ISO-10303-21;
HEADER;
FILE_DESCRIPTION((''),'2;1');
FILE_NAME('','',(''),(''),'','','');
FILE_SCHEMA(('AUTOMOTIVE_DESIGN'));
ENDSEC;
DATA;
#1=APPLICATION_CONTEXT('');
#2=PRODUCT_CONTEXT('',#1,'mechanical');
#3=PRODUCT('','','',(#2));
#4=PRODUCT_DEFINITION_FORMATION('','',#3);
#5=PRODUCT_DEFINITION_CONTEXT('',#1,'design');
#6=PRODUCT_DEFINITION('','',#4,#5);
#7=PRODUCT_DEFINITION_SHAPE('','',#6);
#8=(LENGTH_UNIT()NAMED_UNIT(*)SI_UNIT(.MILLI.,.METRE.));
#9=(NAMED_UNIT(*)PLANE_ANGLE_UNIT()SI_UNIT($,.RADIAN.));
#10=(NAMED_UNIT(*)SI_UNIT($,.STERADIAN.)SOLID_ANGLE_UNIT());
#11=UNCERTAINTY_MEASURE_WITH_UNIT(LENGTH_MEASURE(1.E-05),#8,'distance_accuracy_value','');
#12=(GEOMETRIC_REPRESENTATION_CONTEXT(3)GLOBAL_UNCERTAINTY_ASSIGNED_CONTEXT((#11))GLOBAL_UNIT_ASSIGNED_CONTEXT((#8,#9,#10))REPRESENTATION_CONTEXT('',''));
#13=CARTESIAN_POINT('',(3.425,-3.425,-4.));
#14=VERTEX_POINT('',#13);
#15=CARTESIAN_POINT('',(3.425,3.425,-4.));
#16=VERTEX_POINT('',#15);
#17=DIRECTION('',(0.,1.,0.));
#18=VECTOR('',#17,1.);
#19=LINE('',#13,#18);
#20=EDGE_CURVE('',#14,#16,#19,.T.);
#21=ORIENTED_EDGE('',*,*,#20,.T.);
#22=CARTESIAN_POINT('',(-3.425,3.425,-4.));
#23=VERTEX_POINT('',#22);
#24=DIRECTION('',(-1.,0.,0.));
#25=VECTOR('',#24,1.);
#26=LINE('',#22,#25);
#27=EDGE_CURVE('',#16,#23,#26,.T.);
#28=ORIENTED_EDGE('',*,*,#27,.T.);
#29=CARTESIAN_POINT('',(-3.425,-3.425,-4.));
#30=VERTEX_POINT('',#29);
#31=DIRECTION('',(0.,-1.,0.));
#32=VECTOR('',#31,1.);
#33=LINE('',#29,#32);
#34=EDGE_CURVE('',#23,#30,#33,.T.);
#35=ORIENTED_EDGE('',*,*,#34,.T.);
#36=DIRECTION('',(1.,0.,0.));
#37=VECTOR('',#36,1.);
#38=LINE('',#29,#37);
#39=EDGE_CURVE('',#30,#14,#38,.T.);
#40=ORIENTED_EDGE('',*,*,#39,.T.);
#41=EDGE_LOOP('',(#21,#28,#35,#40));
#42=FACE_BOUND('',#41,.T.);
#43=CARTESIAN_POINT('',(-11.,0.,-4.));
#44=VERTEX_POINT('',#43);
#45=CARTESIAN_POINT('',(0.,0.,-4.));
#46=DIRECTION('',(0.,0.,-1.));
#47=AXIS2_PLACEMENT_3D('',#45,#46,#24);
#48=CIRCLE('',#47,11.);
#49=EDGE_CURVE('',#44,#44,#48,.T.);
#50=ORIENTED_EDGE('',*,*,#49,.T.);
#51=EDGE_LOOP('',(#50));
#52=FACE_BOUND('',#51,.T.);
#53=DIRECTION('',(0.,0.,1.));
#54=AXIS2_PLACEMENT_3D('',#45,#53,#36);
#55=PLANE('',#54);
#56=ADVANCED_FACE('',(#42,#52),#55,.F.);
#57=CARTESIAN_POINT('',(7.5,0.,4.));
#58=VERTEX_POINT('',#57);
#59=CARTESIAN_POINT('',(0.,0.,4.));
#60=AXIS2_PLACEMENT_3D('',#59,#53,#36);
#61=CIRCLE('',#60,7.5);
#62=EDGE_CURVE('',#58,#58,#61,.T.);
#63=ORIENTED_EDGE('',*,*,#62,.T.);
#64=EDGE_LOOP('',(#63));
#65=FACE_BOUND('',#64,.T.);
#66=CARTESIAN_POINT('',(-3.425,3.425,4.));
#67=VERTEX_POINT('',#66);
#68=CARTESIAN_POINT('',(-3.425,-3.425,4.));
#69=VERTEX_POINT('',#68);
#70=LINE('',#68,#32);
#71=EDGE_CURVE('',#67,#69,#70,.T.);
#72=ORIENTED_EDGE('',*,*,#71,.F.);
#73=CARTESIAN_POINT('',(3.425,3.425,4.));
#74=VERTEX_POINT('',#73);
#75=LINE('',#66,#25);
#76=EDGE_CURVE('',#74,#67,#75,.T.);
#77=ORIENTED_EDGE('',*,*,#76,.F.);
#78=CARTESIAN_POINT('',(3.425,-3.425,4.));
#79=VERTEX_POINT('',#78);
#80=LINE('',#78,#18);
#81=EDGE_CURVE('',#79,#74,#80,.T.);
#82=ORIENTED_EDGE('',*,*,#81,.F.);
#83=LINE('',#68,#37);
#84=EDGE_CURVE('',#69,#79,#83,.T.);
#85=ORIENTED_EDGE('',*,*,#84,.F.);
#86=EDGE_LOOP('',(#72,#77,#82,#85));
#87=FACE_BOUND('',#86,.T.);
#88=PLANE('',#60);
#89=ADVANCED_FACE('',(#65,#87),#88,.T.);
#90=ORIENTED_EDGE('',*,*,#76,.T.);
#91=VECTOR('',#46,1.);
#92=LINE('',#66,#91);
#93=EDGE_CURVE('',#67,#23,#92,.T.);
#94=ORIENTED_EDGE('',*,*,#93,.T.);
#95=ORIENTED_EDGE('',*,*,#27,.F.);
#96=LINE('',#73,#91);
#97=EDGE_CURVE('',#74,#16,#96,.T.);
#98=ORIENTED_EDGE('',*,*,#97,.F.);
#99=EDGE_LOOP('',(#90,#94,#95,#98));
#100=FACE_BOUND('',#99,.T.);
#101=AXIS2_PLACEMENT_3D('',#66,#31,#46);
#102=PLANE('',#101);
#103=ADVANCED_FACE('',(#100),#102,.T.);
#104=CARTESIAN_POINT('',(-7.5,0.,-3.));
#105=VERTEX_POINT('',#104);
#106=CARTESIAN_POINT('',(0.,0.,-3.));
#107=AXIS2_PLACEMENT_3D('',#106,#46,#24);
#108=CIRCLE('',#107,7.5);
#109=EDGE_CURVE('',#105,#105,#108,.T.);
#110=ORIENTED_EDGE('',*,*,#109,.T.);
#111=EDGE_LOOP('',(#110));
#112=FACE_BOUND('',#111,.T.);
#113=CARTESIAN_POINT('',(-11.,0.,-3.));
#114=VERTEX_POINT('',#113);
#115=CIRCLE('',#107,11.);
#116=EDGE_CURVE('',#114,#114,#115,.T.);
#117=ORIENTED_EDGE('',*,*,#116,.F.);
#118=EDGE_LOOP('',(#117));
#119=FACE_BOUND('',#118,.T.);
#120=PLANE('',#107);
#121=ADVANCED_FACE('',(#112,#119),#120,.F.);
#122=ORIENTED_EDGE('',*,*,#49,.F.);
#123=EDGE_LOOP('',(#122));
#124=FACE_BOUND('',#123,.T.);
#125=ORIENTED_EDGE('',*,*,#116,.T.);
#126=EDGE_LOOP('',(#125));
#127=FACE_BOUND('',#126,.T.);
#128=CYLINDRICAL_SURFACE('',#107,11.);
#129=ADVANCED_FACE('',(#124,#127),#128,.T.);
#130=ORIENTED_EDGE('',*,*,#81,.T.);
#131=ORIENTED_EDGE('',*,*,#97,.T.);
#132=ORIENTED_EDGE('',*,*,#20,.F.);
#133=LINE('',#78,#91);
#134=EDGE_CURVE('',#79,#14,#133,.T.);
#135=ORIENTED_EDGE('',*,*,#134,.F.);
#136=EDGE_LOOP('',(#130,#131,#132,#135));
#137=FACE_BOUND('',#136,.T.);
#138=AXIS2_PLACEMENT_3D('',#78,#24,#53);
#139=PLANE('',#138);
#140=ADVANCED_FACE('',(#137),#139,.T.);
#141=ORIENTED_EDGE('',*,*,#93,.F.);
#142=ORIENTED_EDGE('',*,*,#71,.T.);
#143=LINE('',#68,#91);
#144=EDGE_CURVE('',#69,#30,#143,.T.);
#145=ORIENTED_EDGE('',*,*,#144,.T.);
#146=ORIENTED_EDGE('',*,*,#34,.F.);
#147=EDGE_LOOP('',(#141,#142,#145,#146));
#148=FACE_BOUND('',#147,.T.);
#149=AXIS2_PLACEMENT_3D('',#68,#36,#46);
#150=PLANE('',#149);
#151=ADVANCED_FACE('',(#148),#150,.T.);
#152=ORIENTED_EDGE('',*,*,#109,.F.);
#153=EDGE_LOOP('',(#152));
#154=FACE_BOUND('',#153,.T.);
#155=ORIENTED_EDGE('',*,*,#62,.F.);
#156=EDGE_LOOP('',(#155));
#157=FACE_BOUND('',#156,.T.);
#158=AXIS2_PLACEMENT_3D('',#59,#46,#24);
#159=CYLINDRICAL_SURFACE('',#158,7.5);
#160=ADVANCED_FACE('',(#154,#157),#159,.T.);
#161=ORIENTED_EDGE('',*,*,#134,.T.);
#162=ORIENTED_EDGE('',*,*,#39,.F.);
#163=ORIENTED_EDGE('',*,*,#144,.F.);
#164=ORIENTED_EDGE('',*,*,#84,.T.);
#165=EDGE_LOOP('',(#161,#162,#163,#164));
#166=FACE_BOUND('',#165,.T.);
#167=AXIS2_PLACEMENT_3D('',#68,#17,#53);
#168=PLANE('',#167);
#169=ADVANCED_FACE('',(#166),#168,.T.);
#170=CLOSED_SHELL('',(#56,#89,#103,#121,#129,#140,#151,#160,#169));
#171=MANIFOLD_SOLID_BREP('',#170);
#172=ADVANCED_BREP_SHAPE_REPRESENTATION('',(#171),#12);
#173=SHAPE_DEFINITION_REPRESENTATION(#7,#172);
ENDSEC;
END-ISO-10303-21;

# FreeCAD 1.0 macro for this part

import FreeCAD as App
import Part
import Sketcher
from FreeCAD import Vector
Q = App.Units.Quantity

doc = App.newDocument("Part")
body = doc.addObject("PartDesign::Body", "Body")

# Sketch on XY plane
sketch1 = body.newObject("Sketcher::SketchObject", "Sketch")
sketch1.AttachmentSupport = (doc.getObject("XY_Plane"), [""])
sketch1.MapMode = "FlatFace"
sketch1.addGeometry(Part.Circle(Vector(0, 0, 0), Vector(0, 0, 1), 8), False)
sketch1.addGeometry(Part.LineSegment(Vector(3, -3, 0), Vector(-3, -3, 0)), False)
sketch1.addGeometry(Part.LineSegment(Vector(-3, -3, 0), Vector(-3, 3, 0)), False)
sketch1.addGeometry(Part.LineSegment(Vector(-3, 3, 0), Vector(3, 3, 0)), False)
sketch1.addGeometry(Part.LineSegment(Vector(3, 3, 0), Vector(3, -3, 0)), False)
sketch1.addConstraint(Sketcher.Constraint("Coincident", 1, 2, 2, 1))
sketch1.addConstraint(Sketcher.Constraint("Coincident", 2, 2, 3, 1))
sketch1.addConstraint(Sketcher.Constraint("Coincident", 3, 2, 4, 1))
sketch1.addConstraint(Sketcher.Constraint("Coincident", 4, 2, 1, 1))
sketch1.addConstraint(Sketcher.Constraint("Horizontal", 1))
sketch1.addConstraint(Sketcher.Constraint("Vertical", 2))
sketch1.addConstraint(Sketcher.Constraint("Horizontal", 3))
sketch1.addConstraint(Sketcher.Constraint("Vertical", 4))
sketch1.addConstraint(Sketcher.Constraint("Coincident", 0, 3, -1, 1))
sketch1.addConstraint(Sketcher.Constraint("Symmetric", 1, 2, 3, 2, -1, 1))
sketch1.addConstraint(Sketcher.Constraint("Equal", 3, 2))
sketch1.addConstraint(Sketcher.Constraint("Diameter", 0, Q("15 mm")))
sketch1.addConstraint(Sketcher.Constraint("DistanceX", 1, 2, 1, 1, Q("6.85 mm")))
pad1 = body.newObject("PartDesign::Pad", "Pad")
pad1.Profile = sketch1
pad1.Length = 8
pad1.Midplane = True

# Sketch on XY plane
sketch2 = body.newObject("Sketcher::SketchObject", "Sketch001")
sketch2.AttachmentSupport = (doc.getObject("XY_Plane"), [""])
sketch2.MapMode = "FlatFace"
sketch2.AttachmentOffset = App.Placement(Vector(0, 0, -4), App.Rotation())
sketch2.addGeometry(Part.Circle(Vector(0, 0, 0), Vector(0, 0, 1), 11), False)
sketch2.addGeometry(Part.Circle(Vector(0, 0, 0), Vector(0, 0, 1), 8), False)
sketch2.addConstraint(Sketcher.Constraint("Coincident", 0, 3, -1, 1))
sketch2.addConstraint(Sketcher.Constraint("Coincident", 1, 3, -1, 1))
sketch2.addConstraint(Sketcher.Constraint("Diameter", 0, Q("22 mm")))
sketch2.addConstraint(Sketcher.Constraint("Diameter", 1, Q("15 mm")))
pad2 = body.newObject("PartDesign::Pad", "Pad001")
pad2.Profile = sketch2
pad2.Length = 1

doc.recompute()
